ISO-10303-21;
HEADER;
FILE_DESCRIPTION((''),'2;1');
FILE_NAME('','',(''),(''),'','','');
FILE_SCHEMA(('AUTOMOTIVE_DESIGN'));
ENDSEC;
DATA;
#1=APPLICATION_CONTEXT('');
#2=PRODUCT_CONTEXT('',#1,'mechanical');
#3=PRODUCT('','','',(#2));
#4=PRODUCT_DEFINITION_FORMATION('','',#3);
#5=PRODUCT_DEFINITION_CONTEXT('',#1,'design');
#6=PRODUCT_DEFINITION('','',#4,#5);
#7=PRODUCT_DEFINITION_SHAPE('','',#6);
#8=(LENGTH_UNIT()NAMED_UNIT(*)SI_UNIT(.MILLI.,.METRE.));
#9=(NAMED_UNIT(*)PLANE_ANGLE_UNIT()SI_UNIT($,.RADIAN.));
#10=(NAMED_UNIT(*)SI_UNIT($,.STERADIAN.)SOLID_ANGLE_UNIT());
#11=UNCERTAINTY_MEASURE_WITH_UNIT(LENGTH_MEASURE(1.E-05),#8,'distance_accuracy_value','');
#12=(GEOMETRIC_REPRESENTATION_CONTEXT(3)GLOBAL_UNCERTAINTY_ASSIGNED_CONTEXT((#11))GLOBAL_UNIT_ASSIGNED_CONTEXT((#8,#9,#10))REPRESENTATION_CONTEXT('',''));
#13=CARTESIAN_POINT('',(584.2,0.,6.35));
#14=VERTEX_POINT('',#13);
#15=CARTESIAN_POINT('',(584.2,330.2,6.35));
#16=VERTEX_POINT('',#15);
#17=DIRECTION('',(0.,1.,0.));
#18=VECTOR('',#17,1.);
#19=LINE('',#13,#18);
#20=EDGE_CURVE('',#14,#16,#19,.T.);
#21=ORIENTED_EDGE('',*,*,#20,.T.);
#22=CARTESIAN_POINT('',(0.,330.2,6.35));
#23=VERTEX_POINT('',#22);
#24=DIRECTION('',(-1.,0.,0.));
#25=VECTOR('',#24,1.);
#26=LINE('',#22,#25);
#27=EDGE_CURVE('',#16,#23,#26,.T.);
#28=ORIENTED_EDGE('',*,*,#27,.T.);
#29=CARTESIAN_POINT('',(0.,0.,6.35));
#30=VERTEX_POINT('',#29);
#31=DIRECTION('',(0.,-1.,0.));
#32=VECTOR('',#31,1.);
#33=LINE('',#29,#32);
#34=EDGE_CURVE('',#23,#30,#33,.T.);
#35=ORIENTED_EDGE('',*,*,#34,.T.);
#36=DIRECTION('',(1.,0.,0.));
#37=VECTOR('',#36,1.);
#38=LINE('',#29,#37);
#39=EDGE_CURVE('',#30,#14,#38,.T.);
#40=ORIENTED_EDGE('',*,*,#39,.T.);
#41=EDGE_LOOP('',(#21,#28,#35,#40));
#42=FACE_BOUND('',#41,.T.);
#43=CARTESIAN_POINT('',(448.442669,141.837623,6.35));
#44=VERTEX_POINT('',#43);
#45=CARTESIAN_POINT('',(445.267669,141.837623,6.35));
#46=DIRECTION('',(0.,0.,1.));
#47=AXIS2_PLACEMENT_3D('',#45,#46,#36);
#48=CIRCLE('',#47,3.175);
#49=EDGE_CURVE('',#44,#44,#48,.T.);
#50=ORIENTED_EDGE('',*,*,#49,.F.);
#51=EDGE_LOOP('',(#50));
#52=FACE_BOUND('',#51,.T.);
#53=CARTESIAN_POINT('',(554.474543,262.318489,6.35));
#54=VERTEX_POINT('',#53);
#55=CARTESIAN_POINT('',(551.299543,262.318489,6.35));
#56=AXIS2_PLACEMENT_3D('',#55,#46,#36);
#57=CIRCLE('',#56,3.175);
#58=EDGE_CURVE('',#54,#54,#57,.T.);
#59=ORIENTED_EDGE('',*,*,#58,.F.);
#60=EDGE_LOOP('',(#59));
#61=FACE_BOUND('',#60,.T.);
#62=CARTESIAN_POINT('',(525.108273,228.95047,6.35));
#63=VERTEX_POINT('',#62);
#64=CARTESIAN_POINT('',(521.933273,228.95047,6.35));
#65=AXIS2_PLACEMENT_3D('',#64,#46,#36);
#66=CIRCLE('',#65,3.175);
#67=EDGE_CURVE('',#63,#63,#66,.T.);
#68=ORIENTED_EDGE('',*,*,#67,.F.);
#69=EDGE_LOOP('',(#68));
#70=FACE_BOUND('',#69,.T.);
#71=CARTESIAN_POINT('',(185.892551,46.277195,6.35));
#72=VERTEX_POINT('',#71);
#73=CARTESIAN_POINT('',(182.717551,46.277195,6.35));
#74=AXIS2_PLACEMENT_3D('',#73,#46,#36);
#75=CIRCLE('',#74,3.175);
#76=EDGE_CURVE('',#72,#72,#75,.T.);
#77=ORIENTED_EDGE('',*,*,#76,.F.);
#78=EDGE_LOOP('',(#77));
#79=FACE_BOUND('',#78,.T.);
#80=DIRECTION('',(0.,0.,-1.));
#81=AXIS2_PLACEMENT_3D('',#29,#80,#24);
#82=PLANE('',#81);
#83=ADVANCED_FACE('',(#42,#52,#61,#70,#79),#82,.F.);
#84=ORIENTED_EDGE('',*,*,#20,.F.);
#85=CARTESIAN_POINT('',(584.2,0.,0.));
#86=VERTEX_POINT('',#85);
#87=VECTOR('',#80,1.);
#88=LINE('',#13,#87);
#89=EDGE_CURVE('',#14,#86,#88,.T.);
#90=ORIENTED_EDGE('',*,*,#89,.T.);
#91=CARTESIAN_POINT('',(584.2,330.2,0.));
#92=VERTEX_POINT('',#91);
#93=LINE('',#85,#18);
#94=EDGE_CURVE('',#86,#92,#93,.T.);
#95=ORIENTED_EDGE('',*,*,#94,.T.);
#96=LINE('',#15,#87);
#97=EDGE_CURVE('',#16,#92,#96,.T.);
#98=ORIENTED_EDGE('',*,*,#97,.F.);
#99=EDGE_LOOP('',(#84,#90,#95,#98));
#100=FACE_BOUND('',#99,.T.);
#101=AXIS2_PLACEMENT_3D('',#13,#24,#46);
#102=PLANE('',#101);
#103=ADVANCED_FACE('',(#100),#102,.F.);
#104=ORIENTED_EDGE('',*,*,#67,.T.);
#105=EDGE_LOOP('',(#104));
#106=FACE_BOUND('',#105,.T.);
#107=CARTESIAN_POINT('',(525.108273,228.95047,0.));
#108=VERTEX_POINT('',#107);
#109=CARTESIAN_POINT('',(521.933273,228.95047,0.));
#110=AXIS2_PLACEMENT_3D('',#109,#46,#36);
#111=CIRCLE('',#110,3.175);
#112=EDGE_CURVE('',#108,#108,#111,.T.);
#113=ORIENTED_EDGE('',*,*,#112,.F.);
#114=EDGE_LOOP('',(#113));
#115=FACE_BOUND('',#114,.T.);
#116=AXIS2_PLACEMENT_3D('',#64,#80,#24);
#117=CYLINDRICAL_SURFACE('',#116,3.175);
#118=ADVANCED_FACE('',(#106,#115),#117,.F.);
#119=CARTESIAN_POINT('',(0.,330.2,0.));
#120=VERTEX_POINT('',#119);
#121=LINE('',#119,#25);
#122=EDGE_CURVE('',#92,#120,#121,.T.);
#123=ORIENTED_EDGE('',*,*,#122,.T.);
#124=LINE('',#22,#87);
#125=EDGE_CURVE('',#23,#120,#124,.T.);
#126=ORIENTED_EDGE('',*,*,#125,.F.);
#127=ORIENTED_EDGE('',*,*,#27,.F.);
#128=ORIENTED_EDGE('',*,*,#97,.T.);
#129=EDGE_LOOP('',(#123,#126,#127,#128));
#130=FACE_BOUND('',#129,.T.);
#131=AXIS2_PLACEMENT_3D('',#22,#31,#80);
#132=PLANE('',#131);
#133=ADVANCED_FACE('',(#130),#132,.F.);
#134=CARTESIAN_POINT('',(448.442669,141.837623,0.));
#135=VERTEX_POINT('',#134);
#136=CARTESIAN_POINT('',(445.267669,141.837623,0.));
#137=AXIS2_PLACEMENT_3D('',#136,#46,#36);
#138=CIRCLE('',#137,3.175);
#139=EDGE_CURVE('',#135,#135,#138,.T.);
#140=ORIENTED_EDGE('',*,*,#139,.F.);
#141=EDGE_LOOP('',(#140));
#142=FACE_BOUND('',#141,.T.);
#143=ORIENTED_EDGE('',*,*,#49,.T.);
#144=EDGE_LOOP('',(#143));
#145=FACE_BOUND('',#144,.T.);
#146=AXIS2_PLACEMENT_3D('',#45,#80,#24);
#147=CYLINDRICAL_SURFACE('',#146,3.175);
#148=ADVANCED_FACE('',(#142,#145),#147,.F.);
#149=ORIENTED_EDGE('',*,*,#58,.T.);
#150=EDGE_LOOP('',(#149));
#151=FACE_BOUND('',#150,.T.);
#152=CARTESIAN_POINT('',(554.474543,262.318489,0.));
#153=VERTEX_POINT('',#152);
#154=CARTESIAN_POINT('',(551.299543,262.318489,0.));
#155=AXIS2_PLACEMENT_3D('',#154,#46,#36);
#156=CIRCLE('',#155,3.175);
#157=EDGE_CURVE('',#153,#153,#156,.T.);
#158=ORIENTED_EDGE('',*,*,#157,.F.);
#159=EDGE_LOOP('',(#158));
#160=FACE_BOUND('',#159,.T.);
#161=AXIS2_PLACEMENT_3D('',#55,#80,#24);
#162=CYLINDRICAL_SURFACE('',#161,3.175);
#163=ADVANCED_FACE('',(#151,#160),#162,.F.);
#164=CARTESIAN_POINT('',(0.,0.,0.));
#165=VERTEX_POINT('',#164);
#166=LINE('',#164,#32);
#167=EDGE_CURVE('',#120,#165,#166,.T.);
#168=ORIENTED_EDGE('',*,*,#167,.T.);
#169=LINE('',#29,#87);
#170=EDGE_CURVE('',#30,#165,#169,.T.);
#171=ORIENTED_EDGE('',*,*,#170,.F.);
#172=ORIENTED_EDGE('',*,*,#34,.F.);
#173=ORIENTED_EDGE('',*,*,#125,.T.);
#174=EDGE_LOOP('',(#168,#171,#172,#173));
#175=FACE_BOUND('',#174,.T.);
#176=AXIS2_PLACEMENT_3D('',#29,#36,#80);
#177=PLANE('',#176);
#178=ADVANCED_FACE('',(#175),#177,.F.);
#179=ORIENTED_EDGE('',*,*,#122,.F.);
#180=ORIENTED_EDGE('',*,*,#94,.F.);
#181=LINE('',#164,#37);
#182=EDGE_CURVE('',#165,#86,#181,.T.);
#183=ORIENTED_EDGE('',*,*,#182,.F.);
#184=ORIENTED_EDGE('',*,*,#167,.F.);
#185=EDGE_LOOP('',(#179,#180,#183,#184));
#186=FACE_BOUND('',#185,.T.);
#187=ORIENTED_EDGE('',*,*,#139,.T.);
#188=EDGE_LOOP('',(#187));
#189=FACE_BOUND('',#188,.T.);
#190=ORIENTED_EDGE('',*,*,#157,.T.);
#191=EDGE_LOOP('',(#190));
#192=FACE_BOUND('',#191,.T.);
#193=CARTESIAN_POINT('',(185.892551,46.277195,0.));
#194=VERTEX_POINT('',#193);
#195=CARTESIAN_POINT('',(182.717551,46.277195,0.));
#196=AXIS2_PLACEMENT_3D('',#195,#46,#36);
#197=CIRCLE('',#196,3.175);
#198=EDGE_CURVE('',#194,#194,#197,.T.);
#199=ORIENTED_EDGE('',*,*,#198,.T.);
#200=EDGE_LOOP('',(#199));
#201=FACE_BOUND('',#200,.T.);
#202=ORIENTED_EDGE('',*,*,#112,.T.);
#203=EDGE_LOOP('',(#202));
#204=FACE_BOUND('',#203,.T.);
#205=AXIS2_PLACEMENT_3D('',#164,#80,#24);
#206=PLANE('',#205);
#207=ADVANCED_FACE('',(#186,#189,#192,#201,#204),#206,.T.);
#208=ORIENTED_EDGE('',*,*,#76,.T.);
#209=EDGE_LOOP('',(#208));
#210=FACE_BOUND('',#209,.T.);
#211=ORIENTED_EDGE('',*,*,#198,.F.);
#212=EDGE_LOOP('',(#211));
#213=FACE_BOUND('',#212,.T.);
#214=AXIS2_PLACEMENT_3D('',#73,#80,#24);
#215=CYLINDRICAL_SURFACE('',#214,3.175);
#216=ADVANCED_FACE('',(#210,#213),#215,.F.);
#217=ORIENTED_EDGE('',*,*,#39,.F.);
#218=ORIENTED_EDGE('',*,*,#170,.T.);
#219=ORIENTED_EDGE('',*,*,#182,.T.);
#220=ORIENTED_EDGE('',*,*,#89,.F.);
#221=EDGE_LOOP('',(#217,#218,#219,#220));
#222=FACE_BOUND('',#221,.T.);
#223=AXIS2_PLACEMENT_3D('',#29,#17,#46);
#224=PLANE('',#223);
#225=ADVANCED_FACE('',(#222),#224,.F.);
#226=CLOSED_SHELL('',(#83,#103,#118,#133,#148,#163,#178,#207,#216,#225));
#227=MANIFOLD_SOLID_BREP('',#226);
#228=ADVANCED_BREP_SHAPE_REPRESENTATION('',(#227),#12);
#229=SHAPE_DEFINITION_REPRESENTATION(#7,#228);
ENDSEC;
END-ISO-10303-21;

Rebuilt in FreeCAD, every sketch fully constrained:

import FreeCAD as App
import Part
import Sketcher
Q = App.Units.Quantity

doc = App.newDocument("Part")
body = doc.addObject("PartDesign::Body", "Body")

# Sketch on XY plane
sketch1 = body.newObject("Sketcher::SketchObject", "Sketch")
sketch1.AttachmentSupport = (doc.getObject("XY_Plane"), [""])
sketch1.MapMode = "FlatFace"
sketch1.addGeometry([
    Part.LineSegment(App.Vector(0, 330.2, 0), App.Vector(0, 0, 0)),  # 0
    Part.LineSegment(App.Vector(0, 0, 0), App.Vector(584.2, 0, 0)),  # 1
    Part.LineSegment(App.Vector(584.2, 0, 0), App.Vector(584.2, 330.2, 0)),  # 2
    Part.LineSegment(App.Vector(584.2, 330.2, 0), App.Vector(0, 330.2, 0)),  # 3
    Part.Circle(App.Vector(182.7, 46.3, 0), App.Vector(0, 0, 1), 3.2),  # 4
    Part.Circle(App.Vector(445.3, 141.8, 0), App.Vector(0, 0, 1), 3.2),  # 5
    Part.Circle(App.Vector(521.9, 229, 0), App.Vector(0, 0, 1), 3.2),  # 6
    Part.Circle(App.Vector(551.3, 262.3, 0), App.Vector(0, 0, 1), 3.2),  # 7
], False)
sketch1.addConstraint([
    Sketcher.Constraint("Coincident", 0, 2, 1, 1),
    Sketcher.Constraint("Coincident", 1, 2, 2, 1),
    Sketcher.Constraint("Coincident", 2, 2, 3, 1),
    Sketcher.Constraint("Coincident", 3, 2, 0, 1),
    Sketcher.Constraint("Vertical", 0),
    Sketcher.Constraint("Horizontal", 1),
    Sketcher.Constraint("Vertical", 2),
    Sketcher.Constraint("Horizontal", 3),
    Sketcher.Constraint("Coincident", 0, 2, -1, 1),
    Sketcher.Constraint("Equal", 4, 5),
    Sketcher.Constraint("Equal", 5, 6),
    Sketcher.Constraint("Equal", 6, 7),
    Sketcher.Constraint("Diameter", 4, Q("0.25 in")),
    Sketcher.Constraint("DistanceX", 1, 1, 1, 2, Q("23 in")),
    Sketcher.Constraint("DistanceY", 0, 2, 0, 1, Q("13 in")),
    Sketcher.Constraint("DistanceX", -1, 1, 4, 3, Q("182.717551 mm")),
    Sketcher.Constraint("DistanceX", -1, 1, 5, 3, Q("445.267669 mm")),
    Sketcher.Constraint("DistanceY", -1, 1, 6, 3, Q("228.95047 mm")),
    Sketcher.Constraint("DistanceY", -1, 1, 7, 3, Q("262.318489 mm")),
    Sketcher.Constraint("DistanceY", 4, 3, 5, 3, Q("95.560428 mm")),
    Sketcher.Constraint("DistanceX", 6, 3, 7, 3, Q("29.36627 mm")),
    Sketcher.Constraint("DistanceY", -1, 1, 4, 3, Q("46.277195 mm")),
    Sketcher.Constraint("DistanceX", -1, 1, 6, 3, Q("521.933273 mm")),
])
pad1 = body.newObject("PartDesign::Pad", "Pad")
pad1.Profile = sketch1
pad1.Length = Q("0.25 in")

doc.recompute()
